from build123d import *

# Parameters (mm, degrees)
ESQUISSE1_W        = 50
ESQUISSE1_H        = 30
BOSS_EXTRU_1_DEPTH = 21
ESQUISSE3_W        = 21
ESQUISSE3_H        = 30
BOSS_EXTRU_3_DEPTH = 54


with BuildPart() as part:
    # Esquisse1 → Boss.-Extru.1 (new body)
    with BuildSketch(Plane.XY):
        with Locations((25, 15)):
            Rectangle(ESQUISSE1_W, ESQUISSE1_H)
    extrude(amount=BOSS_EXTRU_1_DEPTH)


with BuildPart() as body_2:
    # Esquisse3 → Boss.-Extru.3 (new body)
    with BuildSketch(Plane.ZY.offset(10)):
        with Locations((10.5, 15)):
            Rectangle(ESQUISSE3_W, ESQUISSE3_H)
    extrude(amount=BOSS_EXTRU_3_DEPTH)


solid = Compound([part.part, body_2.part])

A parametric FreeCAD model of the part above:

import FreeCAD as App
import Part
import Sketcher


def add_polygon(sketch, points):
    """Adds a closed chain of lines whose ends are joined by coincident constraints."""
    first, n = sketch.GeometryCount, len(points)
    for a, b in zip(points, points[1:] + points[:1]):
        sketch.addGeometry(Part.LineSegment(App.Vector(*a, 0), App.Vector(*b, 0)), False)
    for i in range(n):
        sketch.addConstraint(Sketcher.Constraint("Coincident", first + i, 2, first + (i + 1) % n, 1))

doc = App.newDocument("Part")
body = doc.addObject("PartDesign::Body", "Body")

# Sketch on XY plane
sketch1 = body.newObject("Sketcher::SketchObject", "Sketch")
sketch1.AttachmentSupport = (doc.getObject("XY_Plane"), [""])
sketch1.MapMode = "FlatFace"
add_polygon(sketch1, [(0, 30), (0, 0), (50, 0), (50, 30)])  # lines 0-3
sketch1.addConstraint([
    Sketcher.Constraint("Vertical", 0),
    Sketcher.Constraint("Horizontal", 1),
    Sketcher.Constraint("Vertical", 2),
    Sketcher.Constraint("Horizontal", 3),
    Sketcher.Constraint("Coincident", 0, 2, -1, 1),
    Sketcher.Constraint("DistanceX", 1, 1, 1, 2, 50.0),
    Sketcher.Constraint("DistanceY", 0, 2, 0, 1, 30.0),
])
pad1 = body.newObject("PartDesign::Pad", "Pad")
pad1.Profile = sketch1
pad1.Length = 21
body2 = doc.addObject("PartDesign::Body", "Body001")

# Sketch on YZ plane
sketch2 = body2.newObject("Sketcher::SketchObject", "Sketch001")
sketch2.AttachmentSupport = (doc.getObject("YZ_Plane001"), [""])
sketch2.MapMode = "FlatFace"
sketch2.AttachmentOffset = App.Placement(App.Vector(0, 0, -10), App.Rotation())
add_polygon(sketch2, [(30, 0), (0, 0), (0, 21), (30, 21)])  # lines 0-3
sketch2.addConstraint([
    Sketcher.Constraint("Horizontal", 0),
    Sketcher.Constraint("Vertical", 1),
    Sketcher.Constraint("Horizontal", 2),
    Sketcher.Constraint("Vertical", 3),
    Sketcher.Constraint("Coincident", 0, 2, -1, 1),
    Sketcher.Constraint("DistanceX", 0, 2, 0, 1, 30.0),
    Sketcher.Constraint("DistanceY", 1, 1, 1, 2, 21.0),
])
pad2 = body2.newObject("PartDesign::Pad", "Pad001")
pad2.Profile = sketch2
pad2.Length = 54
pad2.Reversed = True

doc.recompute()
